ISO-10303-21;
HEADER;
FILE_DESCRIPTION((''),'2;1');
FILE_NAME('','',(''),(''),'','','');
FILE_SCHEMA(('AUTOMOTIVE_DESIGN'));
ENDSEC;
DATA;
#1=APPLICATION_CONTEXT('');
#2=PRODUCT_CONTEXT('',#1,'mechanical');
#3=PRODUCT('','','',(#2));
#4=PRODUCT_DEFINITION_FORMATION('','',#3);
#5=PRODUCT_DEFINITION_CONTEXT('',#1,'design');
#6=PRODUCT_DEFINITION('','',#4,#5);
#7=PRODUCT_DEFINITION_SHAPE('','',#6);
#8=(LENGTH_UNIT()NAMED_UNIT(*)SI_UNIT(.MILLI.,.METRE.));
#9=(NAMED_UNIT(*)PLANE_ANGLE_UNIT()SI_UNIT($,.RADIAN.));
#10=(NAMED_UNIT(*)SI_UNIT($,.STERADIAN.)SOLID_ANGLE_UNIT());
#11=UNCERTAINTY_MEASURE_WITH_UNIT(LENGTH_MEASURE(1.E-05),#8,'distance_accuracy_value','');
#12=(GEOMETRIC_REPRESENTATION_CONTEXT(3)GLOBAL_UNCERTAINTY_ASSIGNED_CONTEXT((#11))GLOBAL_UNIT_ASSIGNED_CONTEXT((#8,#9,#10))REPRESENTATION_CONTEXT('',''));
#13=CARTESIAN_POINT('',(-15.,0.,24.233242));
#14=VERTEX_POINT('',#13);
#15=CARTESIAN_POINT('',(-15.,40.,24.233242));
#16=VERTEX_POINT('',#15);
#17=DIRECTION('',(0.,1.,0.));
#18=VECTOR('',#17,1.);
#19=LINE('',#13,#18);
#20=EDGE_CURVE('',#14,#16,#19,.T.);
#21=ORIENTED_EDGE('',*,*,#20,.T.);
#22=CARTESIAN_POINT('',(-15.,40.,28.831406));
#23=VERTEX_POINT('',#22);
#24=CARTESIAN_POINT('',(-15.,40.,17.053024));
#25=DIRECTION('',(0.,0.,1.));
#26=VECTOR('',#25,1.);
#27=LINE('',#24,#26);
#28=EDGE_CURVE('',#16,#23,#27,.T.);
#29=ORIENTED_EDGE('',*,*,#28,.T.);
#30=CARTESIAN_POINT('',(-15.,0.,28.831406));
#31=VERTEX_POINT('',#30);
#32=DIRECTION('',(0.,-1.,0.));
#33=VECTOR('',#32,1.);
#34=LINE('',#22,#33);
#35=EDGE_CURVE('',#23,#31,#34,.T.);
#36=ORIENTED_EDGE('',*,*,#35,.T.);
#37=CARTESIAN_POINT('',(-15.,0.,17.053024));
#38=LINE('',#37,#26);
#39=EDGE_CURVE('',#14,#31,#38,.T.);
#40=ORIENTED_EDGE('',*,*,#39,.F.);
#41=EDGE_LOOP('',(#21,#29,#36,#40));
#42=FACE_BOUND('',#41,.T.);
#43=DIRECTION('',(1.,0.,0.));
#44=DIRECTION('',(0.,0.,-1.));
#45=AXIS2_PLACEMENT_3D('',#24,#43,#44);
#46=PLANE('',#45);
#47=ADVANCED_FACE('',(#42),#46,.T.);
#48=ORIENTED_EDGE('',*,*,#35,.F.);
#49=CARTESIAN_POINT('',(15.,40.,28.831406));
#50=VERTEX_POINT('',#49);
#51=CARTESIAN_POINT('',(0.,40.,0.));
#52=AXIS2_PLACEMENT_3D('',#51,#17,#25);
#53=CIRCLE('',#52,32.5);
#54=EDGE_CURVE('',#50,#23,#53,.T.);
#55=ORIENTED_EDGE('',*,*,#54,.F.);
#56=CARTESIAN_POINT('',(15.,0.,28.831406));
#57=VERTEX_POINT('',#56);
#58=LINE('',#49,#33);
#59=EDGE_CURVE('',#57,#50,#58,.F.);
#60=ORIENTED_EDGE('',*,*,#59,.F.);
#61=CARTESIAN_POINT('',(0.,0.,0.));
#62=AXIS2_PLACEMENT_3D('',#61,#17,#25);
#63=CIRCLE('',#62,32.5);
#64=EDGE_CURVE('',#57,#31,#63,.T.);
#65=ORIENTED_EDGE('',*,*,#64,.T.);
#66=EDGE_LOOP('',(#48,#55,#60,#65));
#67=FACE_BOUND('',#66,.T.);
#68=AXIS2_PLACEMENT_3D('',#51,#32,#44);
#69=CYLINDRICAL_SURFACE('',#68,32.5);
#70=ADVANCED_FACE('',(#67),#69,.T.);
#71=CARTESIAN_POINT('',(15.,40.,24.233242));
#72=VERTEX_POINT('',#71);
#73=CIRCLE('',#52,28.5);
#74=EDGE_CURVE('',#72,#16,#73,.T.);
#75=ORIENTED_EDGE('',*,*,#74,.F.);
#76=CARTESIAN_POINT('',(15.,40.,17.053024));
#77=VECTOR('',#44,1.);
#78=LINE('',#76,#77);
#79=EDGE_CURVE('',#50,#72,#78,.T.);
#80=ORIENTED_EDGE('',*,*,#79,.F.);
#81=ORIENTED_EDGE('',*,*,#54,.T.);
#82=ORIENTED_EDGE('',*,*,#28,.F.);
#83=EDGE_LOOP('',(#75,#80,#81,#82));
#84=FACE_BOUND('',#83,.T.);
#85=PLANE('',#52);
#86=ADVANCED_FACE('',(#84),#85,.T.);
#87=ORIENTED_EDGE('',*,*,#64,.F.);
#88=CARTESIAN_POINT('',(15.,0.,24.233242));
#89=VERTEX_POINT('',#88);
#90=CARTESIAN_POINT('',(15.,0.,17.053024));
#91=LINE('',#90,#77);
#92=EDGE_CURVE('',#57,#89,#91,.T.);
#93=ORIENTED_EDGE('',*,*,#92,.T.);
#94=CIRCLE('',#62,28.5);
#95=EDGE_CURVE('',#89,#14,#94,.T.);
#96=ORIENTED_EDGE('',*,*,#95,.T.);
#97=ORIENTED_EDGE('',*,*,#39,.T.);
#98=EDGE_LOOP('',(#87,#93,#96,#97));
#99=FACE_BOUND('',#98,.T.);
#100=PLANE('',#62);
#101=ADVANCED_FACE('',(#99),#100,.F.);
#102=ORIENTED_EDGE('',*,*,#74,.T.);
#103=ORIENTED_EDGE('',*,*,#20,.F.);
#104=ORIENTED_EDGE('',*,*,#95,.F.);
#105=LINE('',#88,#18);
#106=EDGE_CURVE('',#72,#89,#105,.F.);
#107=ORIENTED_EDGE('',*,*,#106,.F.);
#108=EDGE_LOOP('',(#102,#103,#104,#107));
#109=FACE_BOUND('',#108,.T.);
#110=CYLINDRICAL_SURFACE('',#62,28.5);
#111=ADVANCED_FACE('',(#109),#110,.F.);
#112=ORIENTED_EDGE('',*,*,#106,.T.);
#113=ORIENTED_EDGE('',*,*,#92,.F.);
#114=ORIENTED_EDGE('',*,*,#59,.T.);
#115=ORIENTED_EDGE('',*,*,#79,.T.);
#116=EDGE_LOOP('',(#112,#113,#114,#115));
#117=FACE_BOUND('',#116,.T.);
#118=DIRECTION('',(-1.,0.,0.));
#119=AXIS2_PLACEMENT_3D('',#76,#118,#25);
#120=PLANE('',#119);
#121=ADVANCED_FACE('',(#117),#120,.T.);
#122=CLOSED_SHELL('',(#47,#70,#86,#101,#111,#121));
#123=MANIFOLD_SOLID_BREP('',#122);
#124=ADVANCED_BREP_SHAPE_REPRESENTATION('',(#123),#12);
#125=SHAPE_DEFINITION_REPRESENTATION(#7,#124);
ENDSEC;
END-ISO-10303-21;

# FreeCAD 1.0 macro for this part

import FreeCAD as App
import Part
import Sketcher

V = App.Vector
Q = App.Units.Quantity


def add_polygon(sketch, points):
    """Adds a closed chain of lines whose ends are joined by coincident constraints."""
    first, n = sketch.GeometryCount, len(points)
    for a, b in zip(points, points[1:] + points[:1]):
        sketch.addGeometry(Part.LineSegment(App.Vector(*a, 0), App.Vector(*b, 0)), False)
    for i in range(n):
        sketch.addConstraint(Sketcher.Constraint("Coincident", first + i, 2, first + (i + 1) % n, 1))

doc = App.newDocument("Part")
body = doc.addObject("PartDesign::Body", "Body")

# Sketch on XZ plane
sketch1 = body.newObject("Sketcher::SketchObject", "Sketch")
sketch1.AttachmentSupport = (doc.getObject("XZ_Plane"), [""])
sketch1.MapMode = "FlatFace"
sketch1.addGeometry(Part.Circle(V(0, 0, 0), V(0, 0, 1), 32), False)
sketch1.addConstraint([
    Sketcher.Constraint("Coincident", 0, 3, -1, 1),
    Sketcher.Constraint("Diameter", 0, Q("65 mm")),
])
pad1 = body.newObject("PartDesign::Pad", "Pad")
pad1.Profile = sketch1
pad1.Length = 40
pad1.Reversed = True

# Sketch on XZ plane
sketch2 = body.newObject("Sketcher::SketchObject", "Sketch001")
sketch2.AttachmentSupport = (doc.getObject("XZ_Plane"), [""])
sketch2.MapMode = "FlatFace"
sketch2.AttachmentOffset = App.Placement(V(0, 0, -40), App.Rotation())
sketch2.addGeometry(Part.Circle(V(0, 0, 0), V(0, 0, 1), 28), False)
sketch2.addConstraint([
    Sketcher.Constraint("Coincident", 0, 3, -1, 1),
    Sketcher.Constraint("Diameter", 0, Q("57 mm")),
])
pocket1 = body.newObject("PartDesign::Pocket", "Pocket")
pocket1.Profile = sketch2
pocket1.Length = 40
pocket1.Reversed = True

# Sketch on XZ plane
sketch3 = body.newObject("Sketcher::SketchObject", "Sketch002")
sketch3.AttachmentSupport = (doc.getObject("XZ_Plane"), [""])
sketch3.MapMode = "FlatFace"
add_polygon(sketch3, [(-15, 17), (-15, 37), (15, 37), (15, 17)])  # lines 0-3
sketch3.addConstraint([
    Sketcher.Constraint("Vertical", 0),
    Sketcher.Constraint("Horizontal", 1),
    Sketcher.Constraint("Vertical", 2),
    Sketcher.Constraint("Horizontal", 3),
    Sketcher.Constraint("DistanceX", 1, 1, 1, 2, Q("30 mm")),
    Sketcher.Constraint("DistanceX", 0, 2, -1, 1, Q("15 mm")),
    Sketcher.Constraint("DistanceY", 0, 1, 0, 2, Q("19.489171 mm")),
    Sketcher.Constraint("DistanceY", -1, 1, 0, 2, Q("36.542195 mm")),
])
pocket2 = body.newObject("PartDesign::Pocket", "Pocket001")
pocket2.Profile = sketch3
pocket2.Type = "ThroughAll"

doc.recompute()
